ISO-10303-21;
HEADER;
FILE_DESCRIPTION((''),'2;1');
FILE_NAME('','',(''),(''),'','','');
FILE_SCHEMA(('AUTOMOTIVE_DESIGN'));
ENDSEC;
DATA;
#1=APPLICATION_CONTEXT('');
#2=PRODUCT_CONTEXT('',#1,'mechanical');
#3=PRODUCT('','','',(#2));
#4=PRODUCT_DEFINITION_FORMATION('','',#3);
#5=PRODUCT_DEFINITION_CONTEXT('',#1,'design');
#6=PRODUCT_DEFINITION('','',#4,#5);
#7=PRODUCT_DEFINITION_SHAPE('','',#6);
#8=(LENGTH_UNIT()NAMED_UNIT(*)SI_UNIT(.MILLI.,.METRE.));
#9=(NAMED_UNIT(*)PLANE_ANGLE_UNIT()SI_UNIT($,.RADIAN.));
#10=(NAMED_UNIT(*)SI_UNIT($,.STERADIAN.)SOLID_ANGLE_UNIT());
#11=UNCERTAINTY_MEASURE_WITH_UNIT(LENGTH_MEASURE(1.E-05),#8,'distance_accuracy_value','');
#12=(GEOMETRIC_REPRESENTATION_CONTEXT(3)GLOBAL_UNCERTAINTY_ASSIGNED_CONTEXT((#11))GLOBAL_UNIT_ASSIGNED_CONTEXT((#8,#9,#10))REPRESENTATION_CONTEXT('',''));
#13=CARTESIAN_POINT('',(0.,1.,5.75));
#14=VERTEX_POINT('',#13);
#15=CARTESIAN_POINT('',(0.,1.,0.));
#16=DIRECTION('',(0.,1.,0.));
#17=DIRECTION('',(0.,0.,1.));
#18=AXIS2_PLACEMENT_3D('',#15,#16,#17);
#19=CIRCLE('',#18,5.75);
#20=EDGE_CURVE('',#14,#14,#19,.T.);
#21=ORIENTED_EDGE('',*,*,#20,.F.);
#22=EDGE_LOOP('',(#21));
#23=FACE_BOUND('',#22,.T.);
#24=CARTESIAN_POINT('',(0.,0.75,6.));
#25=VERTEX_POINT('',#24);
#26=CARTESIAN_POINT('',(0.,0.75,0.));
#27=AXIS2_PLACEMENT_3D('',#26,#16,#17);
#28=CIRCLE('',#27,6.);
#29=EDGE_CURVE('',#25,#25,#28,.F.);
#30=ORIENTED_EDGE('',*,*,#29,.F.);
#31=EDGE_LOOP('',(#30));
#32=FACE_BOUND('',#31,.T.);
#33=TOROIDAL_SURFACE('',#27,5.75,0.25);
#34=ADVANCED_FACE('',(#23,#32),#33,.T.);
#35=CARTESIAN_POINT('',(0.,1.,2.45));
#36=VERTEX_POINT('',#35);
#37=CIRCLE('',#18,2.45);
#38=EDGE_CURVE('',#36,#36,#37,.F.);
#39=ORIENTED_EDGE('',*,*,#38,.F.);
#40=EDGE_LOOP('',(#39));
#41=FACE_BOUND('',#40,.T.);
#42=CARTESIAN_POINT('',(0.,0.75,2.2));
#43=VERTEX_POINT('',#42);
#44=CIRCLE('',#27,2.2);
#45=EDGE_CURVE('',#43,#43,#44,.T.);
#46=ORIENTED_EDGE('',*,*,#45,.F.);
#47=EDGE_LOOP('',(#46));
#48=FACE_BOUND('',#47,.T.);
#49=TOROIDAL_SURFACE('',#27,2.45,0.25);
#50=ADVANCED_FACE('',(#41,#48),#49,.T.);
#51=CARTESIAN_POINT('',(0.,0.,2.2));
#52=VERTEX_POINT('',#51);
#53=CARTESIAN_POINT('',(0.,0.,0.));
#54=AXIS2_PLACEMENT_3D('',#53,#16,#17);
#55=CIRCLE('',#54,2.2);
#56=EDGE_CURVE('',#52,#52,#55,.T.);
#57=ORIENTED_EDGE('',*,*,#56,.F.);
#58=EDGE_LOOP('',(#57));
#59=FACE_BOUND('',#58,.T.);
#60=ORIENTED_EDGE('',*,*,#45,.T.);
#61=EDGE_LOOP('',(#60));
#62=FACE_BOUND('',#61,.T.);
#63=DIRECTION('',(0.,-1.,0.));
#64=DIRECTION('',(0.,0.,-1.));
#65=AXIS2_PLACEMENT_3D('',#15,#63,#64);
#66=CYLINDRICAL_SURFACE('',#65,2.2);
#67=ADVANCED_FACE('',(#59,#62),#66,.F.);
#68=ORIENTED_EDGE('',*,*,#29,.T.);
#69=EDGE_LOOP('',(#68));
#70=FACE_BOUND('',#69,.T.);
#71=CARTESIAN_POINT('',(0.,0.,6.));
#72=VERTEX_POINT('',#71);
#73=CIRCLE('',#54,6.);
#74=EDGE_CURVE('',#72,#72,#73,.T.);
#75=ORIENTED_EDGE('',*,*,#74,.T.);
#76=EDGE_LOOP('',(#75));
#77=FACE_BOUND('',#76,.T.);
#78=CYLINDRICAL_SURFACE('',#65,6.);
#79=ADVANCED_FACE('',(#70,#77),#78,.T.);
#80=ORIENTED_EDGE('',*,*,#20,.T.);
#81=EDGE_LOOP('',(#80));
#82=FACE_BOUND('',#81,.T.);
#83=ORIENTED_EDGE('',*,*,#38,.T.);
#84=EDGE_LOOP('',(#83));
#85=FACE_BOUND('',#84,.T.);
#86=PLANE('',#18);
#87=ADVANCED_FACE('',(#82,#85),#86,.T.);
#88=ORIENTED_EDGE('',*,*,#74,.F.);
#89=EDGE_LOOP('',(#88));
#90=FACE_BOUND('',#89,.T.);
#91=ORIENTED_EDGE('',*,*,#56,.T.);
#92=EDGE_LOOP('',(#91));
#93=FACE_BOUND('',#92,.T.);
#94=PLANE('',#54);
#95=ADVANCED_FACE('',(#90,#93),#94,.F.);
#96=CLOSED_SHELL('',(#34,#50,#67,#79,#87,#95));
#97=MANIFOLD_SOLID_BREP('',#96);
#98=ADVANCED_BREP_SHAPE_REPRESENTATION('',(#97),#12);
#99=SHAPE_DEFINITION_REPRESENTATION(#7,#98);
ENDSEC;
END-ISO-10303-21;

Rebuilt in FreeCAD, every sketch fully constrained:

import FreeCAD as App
import Part
import Sketcher

V = App.Vector


def edges_at(feature, points):
    """Names of the edges that pass closest to the given points."""
    edges = feature.Shape.Edges
    near = lambda p: min(range(len(edges)), key=lambda i: edges[i].distToShape(Part.Vertex(*p))[0])
    return sorted({f"Edge{near(p) + 1}" for p in points})

doc = App.newDocument("Part")
body = doc.addObject("PartDesign::Body", "Body")

# Sketch on XZ plane
sketch1 = body.newObject("Sketcher::SketchObject", "Sketch")
sketch1.AttachmentSupport = (doc.getObject("XZ_Plane"), [""])
sketch1.MapMode = "FlatFace"
sketch1.addGeometry(Part.Circle(V(0, 0, 0), V(0, 0, 1), 6), False)
sketch1.addGeometry(Part.Circle(V(0, 0, 0), V(0, 0, 1), 2.2), False)
sketch1.addConstraint(Sketcher.Constraint("Coincident", 0, 3, -1, 1))
sketch1.addConstraint(Sketcher.Constraint("Coincident", 1, 3, -1, 1))
sketch1.addConstraint(Sketcher.Constraint("Diameter", 0, 12.0))
sketch1.addConstraint(Sketcher.Constraint("Diameter", 1, 4.4))
pad1 = body.newObject("PartDesign::Pad", "Pad")
pad1.Profile = sketch1
pad1.Length = 1
pad1.Reversed = True
doc.recompute()

fillet = body.newObject("PartDesign::Fillet", "Fillet")
fillet.Base = (pad1, edges_at(pad1, [(0, 1, -6), (0, 1, -2.2)]))
fillet.Radius = 0.25

doc.recompute()
